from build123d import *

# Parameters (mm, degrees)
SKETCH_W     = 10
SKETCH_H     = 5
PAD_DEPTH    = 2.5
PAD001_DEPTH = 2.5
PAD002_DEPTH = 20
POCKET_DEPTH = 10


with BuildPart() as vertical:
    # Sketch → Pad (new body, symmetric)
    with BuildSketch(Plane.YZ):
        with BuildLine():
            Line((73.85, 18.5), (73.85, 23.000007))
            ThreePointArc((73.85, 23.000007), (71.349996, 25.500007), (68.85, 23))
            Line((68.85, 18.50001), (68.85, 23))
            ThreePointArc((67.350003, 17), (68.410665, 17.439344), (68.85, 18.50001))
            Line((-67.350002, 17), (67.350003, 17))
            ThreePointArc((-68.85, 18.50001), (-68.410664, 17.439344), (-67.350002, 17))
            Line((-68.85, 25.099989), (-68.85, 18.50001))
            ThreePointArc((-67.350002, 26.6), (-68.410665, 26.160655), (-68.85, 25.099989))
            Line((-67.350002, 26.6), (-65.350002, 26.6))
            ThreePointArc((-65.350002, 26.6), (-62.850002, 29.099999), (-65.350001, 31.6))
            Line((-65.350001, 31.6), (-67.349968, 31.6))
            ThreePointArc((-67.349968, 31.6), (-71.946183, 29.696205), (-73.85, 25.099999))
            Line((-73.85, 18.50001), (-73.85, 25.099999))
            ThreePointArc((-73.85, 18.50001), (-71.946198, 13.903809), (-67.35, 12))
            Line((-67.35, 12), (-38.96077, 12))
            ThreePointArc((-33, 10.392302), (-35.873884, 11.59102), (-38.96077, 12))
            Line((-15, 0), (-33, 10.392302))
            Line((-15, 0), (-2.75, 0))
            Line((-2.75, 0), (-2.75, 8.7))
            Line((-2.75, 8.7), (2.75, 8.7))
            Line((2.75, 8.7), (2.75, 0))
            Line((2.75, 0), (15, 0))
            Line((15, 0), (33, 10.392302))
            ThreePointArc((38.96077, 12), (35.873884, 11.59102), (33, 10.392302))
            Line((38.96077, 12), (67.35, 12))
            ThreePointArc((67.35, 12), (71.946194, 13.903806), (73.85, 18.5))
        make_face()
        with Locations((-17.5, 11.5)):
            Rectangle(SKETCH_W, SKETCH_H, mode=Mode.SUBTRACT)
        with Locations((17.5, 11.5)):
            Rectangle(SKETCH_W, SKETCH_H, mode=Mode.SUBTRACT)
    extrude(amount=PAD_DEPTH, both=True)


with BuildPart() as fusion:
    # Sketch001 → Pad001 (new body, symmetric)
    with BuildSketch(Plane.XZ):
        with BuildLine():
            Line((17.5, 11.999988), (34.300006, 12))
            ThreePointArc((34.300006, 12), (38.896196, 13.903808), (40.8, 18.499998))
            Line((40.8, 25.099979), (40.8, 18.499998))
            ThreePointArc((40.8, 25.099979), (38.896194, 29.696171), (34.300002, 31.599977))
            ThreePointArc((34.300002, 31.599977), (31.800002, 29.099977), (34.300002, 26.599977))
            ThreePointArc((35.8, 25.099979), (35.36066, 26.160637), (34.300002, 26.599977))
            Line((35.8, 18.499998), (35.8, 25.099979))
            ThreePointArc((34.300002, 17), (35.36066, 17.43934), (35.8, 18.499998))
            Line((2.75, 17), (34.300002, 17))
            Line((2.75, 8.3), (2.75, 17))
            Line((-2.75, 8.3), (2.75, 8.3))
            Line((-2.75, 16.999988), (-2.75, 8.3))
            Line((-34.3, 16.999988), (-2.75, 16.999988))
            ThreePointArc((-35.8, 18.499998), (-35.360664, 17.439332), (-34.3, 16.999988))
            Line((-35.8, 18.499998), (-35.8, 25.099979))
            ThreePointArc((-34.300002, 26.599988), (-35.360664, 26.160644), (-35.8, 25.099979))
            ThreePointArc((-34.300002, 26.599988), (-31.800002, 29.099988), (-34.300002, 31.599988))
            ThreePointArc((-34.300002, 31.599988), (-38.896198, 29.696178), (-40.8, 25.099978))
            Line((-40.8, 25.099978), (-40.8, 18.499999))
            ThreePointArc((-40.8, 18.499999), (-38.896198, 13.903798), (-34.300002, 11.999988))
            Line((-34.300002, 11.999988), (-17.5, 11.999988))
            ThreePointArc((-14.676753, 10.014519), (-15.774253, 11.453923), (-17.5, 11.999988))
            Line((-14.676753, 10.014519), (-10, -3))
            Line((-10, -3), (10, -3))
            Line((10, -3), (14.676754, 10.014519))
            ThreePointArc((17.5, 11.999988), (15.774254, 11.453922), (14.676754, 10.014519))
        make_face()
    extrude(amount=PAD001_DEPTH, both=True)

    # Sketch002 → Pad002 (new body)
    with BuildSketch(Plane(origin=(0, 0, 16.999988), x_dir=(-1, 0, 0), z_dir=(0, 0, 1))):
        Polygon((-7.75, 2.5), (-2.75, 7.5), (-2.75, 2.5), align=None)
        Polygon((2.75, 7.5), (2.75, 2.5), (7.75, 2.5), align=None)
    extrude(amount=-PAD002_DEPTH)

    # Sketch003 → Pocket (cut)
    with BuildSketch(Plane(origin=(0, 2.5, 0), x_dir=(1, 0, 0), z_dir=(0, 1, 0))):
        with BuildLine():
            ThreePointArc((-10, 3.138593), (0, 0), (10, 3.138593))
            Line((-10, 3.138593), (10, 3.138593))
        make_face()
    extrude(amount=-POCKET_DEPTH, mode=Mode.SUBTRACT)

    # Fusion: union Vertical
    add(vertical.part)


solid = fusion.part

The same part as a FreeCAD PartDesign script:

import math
import FreeCAD as App
import Part
import Sketcher

V = App.Vector
Q = App.Units.Quantity

doc = App.newDocument("Part")
body = doc.addObject("PartDesign::Body", "Body")

sketch1 = doc.addObject("Sketcher::SketchObject", "Sketch")
body.addObject(sketch1)
sketch1.AttachmentSupport = (doc.YZ_Plane, [""])
sketch1.MapMode = "FlatFace"
sketch1.addGeometry([
    Part.LineSegment(V(73.8, 18.5, 0), V(73.8, 23, 0)),
    Part.ArcOfCircle(Part.Circle(V(71.3, 23, 0), V(0, 0, 1), 2.5), math.radians(0), math.radians(180)),
    Part.LineSegment(V(68.8, 23, 0), V(68.8, 18.5, 0)),
    Part.ArcOfCircle(Part.Circle(V(67.4, 18.5, 0), V(0, 0, 1), 1.5), math.radians(-90), math.radians(0)),
    Part.LineSegment(V(67.4, 17, 0), V(-67.4, 17, 0)),
    Part.ArcOfCircle(Part.Circle(V(-67.3, 18.5, 0), V(0, 0, 1), 1.5), math.radians(180), math.radians(270)),
    Part.LineSegment(V(-68.8, 18.5, 0), V(-68.8, 25.1, 0)),
    Part.ArcOfCircle(Part.Circle(V(-67.3, 25.1, 0), V(0, 0, 1), 1.5), math.radians(90), math.radians(180)),
    Part.LineSegment(V(-67.4, 26.6, 0), V(-65.4, 26.6, 0)),
    Part.ArcOfCircle(Part.Circle(V(-65.4, 29.1, 0), V(0, 0, 1), 2.5), math.radians(-90), math.radians(90)),
    Part.LineSegment(V(-65.4, 31.6, 0), V(-67.3, 31.6, 0)),
    Part.ArcOfCircle(Part.Circle(V(-67.3, 25.1, 0), V(0, 0, 1), 6.5), math.radians(90), math.radians(180)),
    Part.LineSegment(V(-73.8, 25.1, 0), V(-73.8, 18.5, 0)),
    Part.ArcOfCircle(Part.Circle(V(-67.4, 18.5, 0), V(0, 0, 1), 6.5), math.radians(180), math.radians(270)),
    Part.LineSegment(V(-67.3, 12, 0), V(-39, 12, 0)),
    Part.ArcOfCircle(Part.Circle(V(-39, 0.1, 0), V(0, 0, 1), 11.9), math.radians(60), math.radians(90)),
    Part.LineSegment(V(-33, 10.4, 0), V(-15, 0, 0)),
    Part.LineSegment(V(-15, 0, 0), V(-2.8, 0, 0)),
    Part.LineSegment(V(-2.8, 0, 0), V(-2.8, 8.7, 0)),
    Part.LineSegment(V(-2.8, 8.7, 0), V(2.8, 8.7, 0)),
    Part.LineSegment(V(2.8, 8.7, 0), V(2.8, 0, 0)),
    Part.LineSegment(V(2.8, 0, 0), V(15, 0, 0)),
    Part.LineSegment(V(15, 0, 0), V(33, 10.4, 0)),
    Part.ArcOfCircle(Part.Circle(V(39, 0.1, 0), V(0, 0, 1), 11.9), math.radians(90), math.radians(120)),
    Part.LineSegment(V(39, 12, 0), V(67.3, 12, 0)),
    Part.ArcOfCircle(Part.Circle(V(67.3, 18.5, 0), V(0, 0, 1), 6.5), math.radians(-90), math.radians(0)),
    Part.LineSegment(V(-12.5, 9, 0), V(-22.5, 9, 0)),
    Part.LineSegment(V(-22.5, 9, 0), V(-22.5, 14, 0)),
    Part.LineSegment(V(-22.5, 14, 0), V(-12.5, 14, 0)),
    Part.LineSegment(V(-12.5, 14, 0), V(-12.5, 9, 0)),
    Part.LineSegment(V(22.5, 9, 0), V(12.5, 9, 0)),
    Part.LineSegment(V(12.5, 9, 0), V(12.5, 14, 0)),
    Part.LineSegment(V(12.5, 14, 0), V(22.5, 14, 0)),
    Part.LineSegment(V(22.5, 14, 0), V(22.5, 9, 0)),
], False)
sketch1.addConstraint([
    Sketcher.Constraint("Tangent", 0, 2, 1, 1),
    Sketcher.Constraint("Coincident", 1, 2, 2, 1),
    Sketcher.Constraint("Coincident", 2, 2, 3, 2),
    Sketcher.Constraint("Tangent", 3, 1, 4, 1),
    Sketcher.Constraint("Tangent", 4, 2, 5, 2),
    Sketcher.Constraint("Coincident", 5, 1, 6, 1),
    Sketcher.Constraint("Coincident", 6, 2, 7, 2),
    Sketcher.Constraint("Tangent", 7, 1, 8, 1),
    Sketcher.Constraint("Tangent", 8, 2, 9, 1),
    Sketcher.Constraint("Tangent", 9, 2, 10, 1),
    Sketcher.Constraint("Coincident", 10, 2, 11, 1),
    Sketcher.Constraint("Tangent", 11, 2, 12, 1),
    Sketcher.Constraint("Tangent", 12, 2, 13, 1),
    Sketcher.Constraint("Tangent", 13, 2, 14, 1),
    Sketcher.Constraint("Tangent", 14, 2, 15, 2),
    Sketcher.Constraint("Coincident", 15, 1, 16, 1),
    Sketcher.Constraint("Coincident", 16, 2, 17, 1),
    Sketcher.Constraint("Coincident", 17, 2, 18, 1),
    Sketcher.Constraint("Coincident", 18, 2, 19, 1),
    Sketcher.Constraint("Coincident", 19, 2, 20, 1),
    Sketcher.Constraint("Coincident", 20, 2, 21, 1),
    Sketcher.Constraint("Coincident", 21, 2, 22, 1),
    Sketcher.Constraint("Coincident", 22, 2, 23, 2),
    Sketcher.Constraint("Tangent", 23, 1, 24, 1),
    Sketcher.Constraint("Tangent", 24, 2, 25, 1),
    Sketcher.Constraint("Tangent", 25, 2, 0, 1),
    Sketcher.Constraint("Coincident", 26, 2, 27, 1),
    Sketcher.Constraint("Coincident", 27, 2, 28, 1),
    Sketcher.Constraint("Coincident", 28, 2, 29, 1),
    Sketcher.Constraint("Coincident", 29, 2, 26, 1),
    Sketcher.Constraint("Coincident", 30, 2, 31, 1),
    Sketcher.Constraint("Coincident", 31, 2, 32, 1),
    Sketcher.Constraint("Coincident", 32, 2, 33, 1),
    Sketcher.Constraint("Coincident", 33, 2, 30, 1),
    Sketcher.Constraint("Vertical", 0),
    Sketcher.Constraint("Vertical", 2),
    Sketcher.Constraint("Horizontal", 4),
    Sketcher.Constraint("Vertical", 6),
    Sketcher.Constraint("Horizontal", 8),
    Sketcher.Constraint("Horizontal", 10),
    Sketcher.Constraint("Vertical", 12),
    Sketcher.Constraint("Horizontal", 14),
    Sketcher.Constraint("Horizontal", 17),
    Sketcher.Constraint("Vertical", 18),
    Sketcher.Constraint("Horizontal", 19),
    Sketcher.Constraint("Vertical", 20),
    Sketcher.Constraint("Horizontal", 21),
    Sketcher.Constraint("Horizontal", 24),
    Sketcher.Constraint("Horizontal", 26),
    Sketcher.Constraint("Vertical", 27),
    Sketcher.Constraint("Horizontal", 28),
    Sketcher.Constraint("Vertical", 29),
    Sketcher.Constraint("Horizontal", 30),
    Sketcher.Constraint("Vertical", 31),
    Sketcher.Constraint("Horizontal", 32),
    Sketcher.Constraint("Vertical", 33),
    Sketcher.Constraint("Coincident", 11, 3, 7, 3),
    Sketcher.Constraint("Coincident", 13, 3, 5, 3),
    Sketcher.Constraint("Coincident", 25, 3, 3, 3),
    Sketcher.Constraint("Equal", 3, 5),
    Sketcher.Constraint("Equal", 5, 7),
    Sketcher.Constraint("Equal", 1, 9),
    Sketcher.Constraint("Equal", 15, 23),
    Sketcher.Constraint("Symmetric", 17, 2, 20, 2, -1, 1),
    Sketcher.Constraint("Symmetric", 2, 2, 5, 1, -2),
    Sketcher.Constraint("Symmetric", 16, 2, 21, 2, -2),
    Sketcher.Constraint("Symmetric", 15, 1, 22, 2, -2),
    Sketcher.Constraint("Symmetric", 29, 2, 30, 2, -2),
    Sketcher.Constraint("Symmetric", 27, 2, 32, 2, -2),
    Sketcher.Constraint("Horizontal", 5, 1, 12, 2),
    Sketcher.Constraint("Radius", 1, 2.5),
    Sketcher.Constraint("Radius", 3, 1.499999),
    Sketcher.Constraint("DistanceX", 8, 1, 8, 2, 2.0),
    Sketcher.Constraint("DistanceX", 26, 2, 26, 1, 10.0),
    Sketcher.Constraint("DistanceY", 27, 1, 27, 2, 5.0),
    Sketcher.Constraint("Angle", 16, Q("-29.999993 deg")),
    Sketcher.Constraint("DistanceX", 19, 1, 19, 2, 5.5),
    Sketcher.Constraint("DistanceY", 18, 1, 18, 2, 8.7),
    Sketcher.Constraint("DistanceY", -1, 1, 1, 2, 23.0),
    Sketcher.Constraint("DistanceY", -1, 1, 3, 1, 17.0),
    Sketcher.Constraint("DistanceX", 15, 1, -1, 1, 33.0),
    Sketcher.Constraint("DistanceX", 16, 2, -1, 1, 15.0),
    Sketcher.Constraint("DistanceY", -1, 1, 26, 2, 9.0),
    Sketcher.Constraint("DistanceY", -1, 1, 7, 3, 25.099999),
    Sketcher.Constraint("DistanceX", 26, 2, -1, 1, 22.5),
    Sketcher.Constraint("DistanceX", 5, 3, 3, 3, 134.700001),
    Sketcher.Constraint("Radius", 15, 11.854065),
    Sketcher.Constraint("DistanceY", 6, 1, 6, 2, 6.599979),
    Sketcher.Constraint("DistanceX", 10, 2, 10, 1, 1.999967),
    Sketcher.Constraint("DistanceY", 0, 1, 0, 2, 4.500007),
])
pad1 = doc.addObject("PartDesign::Pad", "Pad")
body.addObject(pad1)
pad1.Profile = sketch1
pad1.Length = 5
pad1.Midplane = True
body2 = doc.addObject("PartDesign::Body", "Body001")
body2.AllowCompound = True

sketch2 = doc.addObject("Sketcher::SketchObject", "Sketch001")
body2.addObject(sketch2)
sketch2.AttachmentSupport = (doc.getObject("XZ_Plane001"), [""])
sketch2.MapMode = "FlatFace"
sketch2.addGeometry([
    Part.LineSegment(V(17.5, 11.999988, 0), V(34.300006, 12, 0)),
    Part.ArcOfCircle(Part.Circle(V(34.3, 18.5, 0), V(0, 0, 1), 6.5), math.radians(-89.999945), math.radians(-0.00002)),
    Part.LineSegment(V(40.8, 18.499998, 0), V(40.8, 25.099979, 0)),
    Part.ArcOfCircle(Part.Circle(V(34.3, 25.099977, 0), V(0, 0, 1), 6.5), math.radians(0.00002), math.radians(89.99998)),
    Part.ArcOfCircle(Part.Circle(V(34.300002, 29.099977, 0), V(0, 0, 1), 2.5), math.radians(90), math.radians(270)),
    Part.ArcOfCircle(Part.Circle(V(34.299999, 25.099976, 0), V(0, 0, 1), 1.500001), math.radians(0.000099), math.radians(89.999901)),
    Part.LineSegment(V(35.8, 25.099979, 0), V(35.8, 18.499998, 0)),
    Part.ArcOfCircle(Part.Circle(V(34.299999, 18.500001, 0), V(0, 0, 1), 1.500001), math.radians(-89.999901), math.radians(-0.000099)),
    Part.LineSegment(V(34.300002, 17, 0), V(2.75, 17, 0)),
    Part.LineSegment(V(2.75, 17, 0), V(2.75, 8.3, 0)),
    Part.LineSegment(V(2.75, 8.3, 0), V(-2.75, 8.3, 0)),
    Part.LineSegment(V(-2.75, 8.3, 0), V(-2.75, 16.999988, 0)),
    Part.LineSegment(V(-2.75, 16.999988, 0), V(-34.3, 16.999988, 0)),
    Part.ArcOfCircle(Part.Circle(V(-34.299999, 18.499989, 0), V(0, 0, 1), 1.500001), math.radians(179.99964), math.radians(269.999978)),
    Part.LineSegment(V(-35.8, 18.499998, 0), V(-35.8, 25.099979, 0)),
    Part.ArcOfCircle(Part.Circle(V(-34.299999, 25.099987, 0), V(0, 0, 1), 1.500001), math.radians(90.000099), math.radians(180.000321)),
    Part.ArcOfCircle(Part.Circle(V(-34.300002, 29.099988, 0), V(0, 0, 1), 2.5), math.radians(-90), math.radians(90)),
    Part.ArcOfCircle(Part.Circle(V(-34.3, 25.099988, 0), V(0, 0, 1), 6.5), math.radians(90.00002), math.radians(180.000086)),
    Part.LineSegment(V(-40.8, 25.099978, 0), V(-40.8, 18.499999, 0)),
    Part.ArcOfCircle(Part.Circle(V(-34.3, 18.499988, 0), V(0, 0, 1), 6.5), math.radians(179.999905), math.radians(269.99998)),
    Part.LineSegment(V(-34.300002, 11.999988, 0), V(-17.5, 11.999988, 0)),
    Part.ArcOfCircle(Part.Circle(V(-17.5, 8.999989, 0), V(0, 0, 1), 2.999999), math.radians(19.765829), math.radians(90.000006)),
    Part.LineSegment(V(-14.676753, 10.014519, 0), V(-10, -3, 0)),
    Part.LineSegment(V(-10, -3, 0), V(10, -3, 0)),
    Part.LineSegment(V(10, -3, 0), V(14.676754, 10.014519, 0)),
    Part.ArcOfCircle(Part.Circle(V(17.500003, 8.999986, 0), V(0, 0, 1), 3.000002), math.radians(90.000063), math.radians(160.234121)),
], False)
sketch2.addConstraint([
    Sketcher.Constraint("Coincident", 0, 2, 1, 1),
    Sketcher.Constraint("Coincident", 1, 2, 2, 1),
    Sketcher.Constraint("Coincident", 2, 2, 3, 1),
    Sketcher.Constraint("Coincident", 3, 2, 4, 1),
    Sketcher.Constraint("Coincident", 4, 2, 5, 2),
    Sketcher.Constraint("Coincident", 5, 1, 6, 1),
    Sketcher.Constraint("Coincident", 6, 2, 7, 2),
    Sketcher.Constraint("Coincident", 7, 1, 8, 1),
    Sketcher.Constraint("Coincident", 8, 2, 9, 1),
    Sketcher.Constraint("Coincident", 9, 2, 10, 1),
    Sketcher.Constraint("Coincident", 10, 2, 11, 1),
    Sketcher.Constraint("Coincident", 11, 2, 12, 1),
    Sketcher.Constraint("Coincident", 12, 2, 13, 2),
    Sketcher.Constraint("Coincident", 13, 1, 14, 1),
    Sketcher.Constraint("Coincident", 14, 2, 15, 2),
    Sketcher.Constraint("Coincident", 15, 1, 16, 1),
    Sketcher.Constraint("Coincident", 16, 2, 17, 1),
    Sketcher.Constraint("Coincident", 17, 2, 18, 1),
    Sketcher.Constraint("Coincident", 18, 2, 19, 1),
    Sketcher.Constraint("Coincident", 19, 2, 20, 1),
    Sketcher.Constraint("Coincident", 20, 2, 21, 2),
    Sketcher.Constraint("Coincident", 21, 1, 22, 1),
    Sketcher.Constraint("Coincident", 22, 2, 23, 1),
    Sketcher.Constraint("Coincident", 23, 2, 24, 1),
    Sketcher.Constraint("Coincident", 24, 2, 25, 2),
    Sketcher.Constraint("Coincident", 25, 1, 0, 1),
    Sketcher.Constraint("Vertical", 2),
    Sketcher.Constraint("Vertical", 6),
    Sketcher.Constraint("Horizontal", 8),
    Sketcher.Constraint("Vertical", 9),
    Sketcher.Constraint("Horizontal", 10),
    Sketcher.Constraint("Vertical", 11),
    Sketcher.Constraint("Horizontal", 12),
    Sketcher.Constraint("Vertical", 14),
    Sketcher.Constraint("Vertical", 18),
    Sketcher.Constraint("Horizontal", 20),
    Sketcher.Constraint("Horizontal", 23),
    Sketcher.Constraint("Coincident", 5, 3, 3, 3),
    Sketcher.Constraint("Coincident", 7, 3, 1, 3),
    Sketcher.Constraint("Coincident", 17, 3, 15, 3),
    Sketcher.Constraint("Coincident", 19, 3, 13, 3),
    Sketcher.Constraint("Radius", 21, 2.999999),
    Sketcher.Constraint("Radius", 1, 6.5),
    Sketcher.Constraint("Radius", 3, 6.5),
    Sketcher.Constraint("Radius", 4, 2.5),
    Sketcher.Constraint("Radius", 13, 1.500001),
    Sketcher.Constraint("Radius", 15, 1.500001),
    Sketcher.Constraint("Radius", 16, 2.5),
    Sketcher.Constraint("DistanceX", 23, 1, 23, 2, 20.0),
    Sketcher.Constraint("DistanceX", 10, 2, 10, 1, 5.5),
    Sketcher.Constraint("DistanceX", 20, 1, 20, 2, 16.800002),
    Sketcher.Constraint("DistanceY", 9, 2, 9, 1, 8.7),
    Sketcher.Constraint("DistanceY", -1, 1, 0, 2, 12.0),
    Sketcher.Constraint("DistanceX", 22, 2, -1, 1, 10.0),
    Sketcher.Constraint("DistanceY", 22, 2, -1, 1, 3.0),
    Sketcher.Constraint("DistanceX", 8, 2, 8, 1, 31.550002),
    Sketcher.Constraint("DistanceX", 12, 2, 12, 1, 31.55),
    Sketcher.Constraint("DistanceX", -1, 1, 1, 3, 34.3),
    Sketcher.Constraint("DistanceX", 13, 3, -1, 1, 34.299999),
    Sketcher.Constraint("DistanceX", 21, 3, -1, 1, 17.5),
    Sketcher.Constraint("DistanceY", -1, 1, 1, 2, 18.499998),
    Sketcher.Constraint("DistanceY", -1, 1, 6, 2, 18.499998),
    Sketcher.Constraint("DistanceX", 12, 2, -1, 1, 34.3),
    Sketcher.Constraint("DistanceY", -1, 1, 13, 1, 18.499998),
    Sketcher.Constraint("DistanceY", -1, 1, 18, 2, 18.499999),
    Sketcher.Constraint("DistanceX", 20, 2, -1, 1, 17.5),
    Sketcher.Constraint("DistanceX", -1, 1, 25, 1, 17.5),
    Sketcher.Constraint("DistanceX", 13, 3, 4, 3, 68.600001),
    Sketcher.Constraint("DistanceY", 13, 3, 15, 3, 6.599999),
    Sketcher.Constraint("DistanceX", 16, 3, 5, 3, 68.600001),
    Sketcher.Constraint("DistanceX", 25, 3, 4, 3, 16.799999),
    Sketcher.Constraint("DistanceX", 4, 2, 5, 1, 1.499998),
    Sketcher.Constraint("Radius", 25, 3.000002),
    Sketcher.Constraint("DistanceY", 2, 1, 2, 2, 6.599981),
    Sketcher.Constraint("DistanceY", 6, 2, 6, 1, 6.599981),
    Sketcher.Constraint("DistanceY", 14, 1, 14, 2, 6.599981),
    Sketcher.Constraint("DistanceY", 18, 2, 18, 1, 6.599979),
    Sketcher.Constraint("DistanceY", 11, 1, 11, 2, 8.699988),
    Sketcher.Constraint("DistanceY", -1, 1, 21, 1, 10.014519),
    Sketcher.Constraint("DistanceY", -1, 1, 24, 2, 10.014519),
    Sketcher.Constraint("DistanceY", 13, 3, 3, 3, 6.599988),
    Sketcher.Constraint("DistanceY", 25, 3, 5, 3, 16.099991),
    Sketcher.Constraint("Distance", 0, 16.800006),
    Sketcher.Constraint("DistanceX", -1, 1, 3, 2, 34.300002),
    Sketcher.Constraint("DistanceX", 15, 1, -1, 1, 34.300002),
    Sketcher.Constraint("DistanceX", 16, 2, -1, 1, 34.300002),
])
pad2 = doc.addObject("PartDesign::Pad", "Pad001")
body2.addObject(pad2)
pad2.Profile = sketch2
pad2.Length = 5
pad2.Midplane = True

sketch3 = doc.addObject("Sketcher::SketchObject", "Sketch002")
body2.addObject(sketch3)
sketch3.AttachmentSupport = (doc.getObject("XY_Plane001"), [""])
sketch3.MapMode = "FlatFace"
sketch3.AttachmentOffset = App.Placement(V(0, 0, 16.999988), App.Rotation())
sketch3.addGeometry([
    Part.LineSegment(V(3, -8, 0), V(8, -2, 0)),
    Part.LineSegment(V(8, -2, 0), V(3, -2, 0)),
    Part.LineSegment(V(3, -2, 0), V(3, -8, 0)),
    Part.LineSegment(V(-3, -8, 0), V(-3, -2, 0)),
    Part.LineSegment(V(-3, -2, 0), V(-8, -2, 0)),
    Part.LineSegment(V(-8, -2, 0), V(-3, -8, 0)),
], False)
sketch3.addConstraint([
    Sketcher.Constraint("Coincident", 0, 2, 1, 1),
    Sketcher.Constraint("Coincident", 1, 2, 2, 1),
    Sketcher.Constraint("Coincident", 2, 2, 0, 1),
    Sketcher.Constraint("Coincident", 3, 2, 4, 1),
    Sketcher.Constraint("Coincident", 4, 2, 5, 1),
    Sketcher.Constraint("Coincident", 5, 2, 3, 1),
    Sketcher.Constraint("Horizontal", 1),
    Sketcher.Constraint("Vertical", 2),
    Sketcher.Constraint("Vertical", 3),
    Sketcher.Constraint("Horizontal", 4),
    Sketcher.Constraint("Symmetric", 1, 2, 3, 2, -2),
    Sketcher.Constraint("Perpendicular", 0, 5),
    Sketcher.Constraint("Horizontal", 2, 2, 5, 2),
    Sketcher.Constraint("Equal", 1, 4),
    Sketcher.Constraint("DistanceX", 1, 2, 1, 1, 5.0),
    Sketcher.Constraint("DistanceY", 0, 2, -1, 1, 2.5),
    Sketcher.Constraint("DistanceX", 3, 2, 1, 2, 5.5),
])
pad3 = doc.addObject("PartDesign::Pad", "Pad002")
body2.addObject(pad3)
pad3.Profile = sketch3
pad3.Length = 20
pad3.Reversed = True

sketch4 = doc.addObject("Sketcher::SketchObject", "Sketch003")
body2.addObject(sketch4)
sketch4.AttachmentSupport = (doc.getObject("XZ_Plane001"), [""])
sketch4.MapMode = "FlatFace"
sketch4.AttachmentOffset = App.Placement(V(0, 0, -2.5), App.Rotation())
sketch4.addGeometry([
    Part.ArcOfCircle(Part.Circle(V(0, -18, 0), V(0, 0, 1), 18), math.radians(55), math.radians(125)),
    Part.LineSegment(V(10, -3, 0), V(-10, -3, 0)),
], False)
sketch4.addConstraint([
    Sketcher.Constraint("Coincident", 0, 1, 1, 1),
    Sketcher.Constraint("Coincident", 1, 2, 0, 2),
    Sketcher.Constraint("Horizontal", 1),
    Sketcher.Constraint("PointOnObject", 0, 3, -2),
    Sketcher.Constraint("Radius", 0, 17.500002),
    Sketcher.Constraint("DistanceX", 1, 2, 1, 1, 20.0),
    Sketcher.Constraint("DistanceY", 0, 3, -1, 1, 17.500002),
])
pocket1 = doc.addObject("PartDesign::Pocket", "Pocket")
body2.addObject(pocket1)
pocket1.Profile = sketch4
pocket1.Length = 10
pocket1.Reversed = True
doc.recompute()

boolean = doc.addObject("PartDesign::Boolean", "Boolean")
body2.addObject(boolean)
boolean.Type = "Fuse"
boolean.addObjects([body])

doc.recompute()
